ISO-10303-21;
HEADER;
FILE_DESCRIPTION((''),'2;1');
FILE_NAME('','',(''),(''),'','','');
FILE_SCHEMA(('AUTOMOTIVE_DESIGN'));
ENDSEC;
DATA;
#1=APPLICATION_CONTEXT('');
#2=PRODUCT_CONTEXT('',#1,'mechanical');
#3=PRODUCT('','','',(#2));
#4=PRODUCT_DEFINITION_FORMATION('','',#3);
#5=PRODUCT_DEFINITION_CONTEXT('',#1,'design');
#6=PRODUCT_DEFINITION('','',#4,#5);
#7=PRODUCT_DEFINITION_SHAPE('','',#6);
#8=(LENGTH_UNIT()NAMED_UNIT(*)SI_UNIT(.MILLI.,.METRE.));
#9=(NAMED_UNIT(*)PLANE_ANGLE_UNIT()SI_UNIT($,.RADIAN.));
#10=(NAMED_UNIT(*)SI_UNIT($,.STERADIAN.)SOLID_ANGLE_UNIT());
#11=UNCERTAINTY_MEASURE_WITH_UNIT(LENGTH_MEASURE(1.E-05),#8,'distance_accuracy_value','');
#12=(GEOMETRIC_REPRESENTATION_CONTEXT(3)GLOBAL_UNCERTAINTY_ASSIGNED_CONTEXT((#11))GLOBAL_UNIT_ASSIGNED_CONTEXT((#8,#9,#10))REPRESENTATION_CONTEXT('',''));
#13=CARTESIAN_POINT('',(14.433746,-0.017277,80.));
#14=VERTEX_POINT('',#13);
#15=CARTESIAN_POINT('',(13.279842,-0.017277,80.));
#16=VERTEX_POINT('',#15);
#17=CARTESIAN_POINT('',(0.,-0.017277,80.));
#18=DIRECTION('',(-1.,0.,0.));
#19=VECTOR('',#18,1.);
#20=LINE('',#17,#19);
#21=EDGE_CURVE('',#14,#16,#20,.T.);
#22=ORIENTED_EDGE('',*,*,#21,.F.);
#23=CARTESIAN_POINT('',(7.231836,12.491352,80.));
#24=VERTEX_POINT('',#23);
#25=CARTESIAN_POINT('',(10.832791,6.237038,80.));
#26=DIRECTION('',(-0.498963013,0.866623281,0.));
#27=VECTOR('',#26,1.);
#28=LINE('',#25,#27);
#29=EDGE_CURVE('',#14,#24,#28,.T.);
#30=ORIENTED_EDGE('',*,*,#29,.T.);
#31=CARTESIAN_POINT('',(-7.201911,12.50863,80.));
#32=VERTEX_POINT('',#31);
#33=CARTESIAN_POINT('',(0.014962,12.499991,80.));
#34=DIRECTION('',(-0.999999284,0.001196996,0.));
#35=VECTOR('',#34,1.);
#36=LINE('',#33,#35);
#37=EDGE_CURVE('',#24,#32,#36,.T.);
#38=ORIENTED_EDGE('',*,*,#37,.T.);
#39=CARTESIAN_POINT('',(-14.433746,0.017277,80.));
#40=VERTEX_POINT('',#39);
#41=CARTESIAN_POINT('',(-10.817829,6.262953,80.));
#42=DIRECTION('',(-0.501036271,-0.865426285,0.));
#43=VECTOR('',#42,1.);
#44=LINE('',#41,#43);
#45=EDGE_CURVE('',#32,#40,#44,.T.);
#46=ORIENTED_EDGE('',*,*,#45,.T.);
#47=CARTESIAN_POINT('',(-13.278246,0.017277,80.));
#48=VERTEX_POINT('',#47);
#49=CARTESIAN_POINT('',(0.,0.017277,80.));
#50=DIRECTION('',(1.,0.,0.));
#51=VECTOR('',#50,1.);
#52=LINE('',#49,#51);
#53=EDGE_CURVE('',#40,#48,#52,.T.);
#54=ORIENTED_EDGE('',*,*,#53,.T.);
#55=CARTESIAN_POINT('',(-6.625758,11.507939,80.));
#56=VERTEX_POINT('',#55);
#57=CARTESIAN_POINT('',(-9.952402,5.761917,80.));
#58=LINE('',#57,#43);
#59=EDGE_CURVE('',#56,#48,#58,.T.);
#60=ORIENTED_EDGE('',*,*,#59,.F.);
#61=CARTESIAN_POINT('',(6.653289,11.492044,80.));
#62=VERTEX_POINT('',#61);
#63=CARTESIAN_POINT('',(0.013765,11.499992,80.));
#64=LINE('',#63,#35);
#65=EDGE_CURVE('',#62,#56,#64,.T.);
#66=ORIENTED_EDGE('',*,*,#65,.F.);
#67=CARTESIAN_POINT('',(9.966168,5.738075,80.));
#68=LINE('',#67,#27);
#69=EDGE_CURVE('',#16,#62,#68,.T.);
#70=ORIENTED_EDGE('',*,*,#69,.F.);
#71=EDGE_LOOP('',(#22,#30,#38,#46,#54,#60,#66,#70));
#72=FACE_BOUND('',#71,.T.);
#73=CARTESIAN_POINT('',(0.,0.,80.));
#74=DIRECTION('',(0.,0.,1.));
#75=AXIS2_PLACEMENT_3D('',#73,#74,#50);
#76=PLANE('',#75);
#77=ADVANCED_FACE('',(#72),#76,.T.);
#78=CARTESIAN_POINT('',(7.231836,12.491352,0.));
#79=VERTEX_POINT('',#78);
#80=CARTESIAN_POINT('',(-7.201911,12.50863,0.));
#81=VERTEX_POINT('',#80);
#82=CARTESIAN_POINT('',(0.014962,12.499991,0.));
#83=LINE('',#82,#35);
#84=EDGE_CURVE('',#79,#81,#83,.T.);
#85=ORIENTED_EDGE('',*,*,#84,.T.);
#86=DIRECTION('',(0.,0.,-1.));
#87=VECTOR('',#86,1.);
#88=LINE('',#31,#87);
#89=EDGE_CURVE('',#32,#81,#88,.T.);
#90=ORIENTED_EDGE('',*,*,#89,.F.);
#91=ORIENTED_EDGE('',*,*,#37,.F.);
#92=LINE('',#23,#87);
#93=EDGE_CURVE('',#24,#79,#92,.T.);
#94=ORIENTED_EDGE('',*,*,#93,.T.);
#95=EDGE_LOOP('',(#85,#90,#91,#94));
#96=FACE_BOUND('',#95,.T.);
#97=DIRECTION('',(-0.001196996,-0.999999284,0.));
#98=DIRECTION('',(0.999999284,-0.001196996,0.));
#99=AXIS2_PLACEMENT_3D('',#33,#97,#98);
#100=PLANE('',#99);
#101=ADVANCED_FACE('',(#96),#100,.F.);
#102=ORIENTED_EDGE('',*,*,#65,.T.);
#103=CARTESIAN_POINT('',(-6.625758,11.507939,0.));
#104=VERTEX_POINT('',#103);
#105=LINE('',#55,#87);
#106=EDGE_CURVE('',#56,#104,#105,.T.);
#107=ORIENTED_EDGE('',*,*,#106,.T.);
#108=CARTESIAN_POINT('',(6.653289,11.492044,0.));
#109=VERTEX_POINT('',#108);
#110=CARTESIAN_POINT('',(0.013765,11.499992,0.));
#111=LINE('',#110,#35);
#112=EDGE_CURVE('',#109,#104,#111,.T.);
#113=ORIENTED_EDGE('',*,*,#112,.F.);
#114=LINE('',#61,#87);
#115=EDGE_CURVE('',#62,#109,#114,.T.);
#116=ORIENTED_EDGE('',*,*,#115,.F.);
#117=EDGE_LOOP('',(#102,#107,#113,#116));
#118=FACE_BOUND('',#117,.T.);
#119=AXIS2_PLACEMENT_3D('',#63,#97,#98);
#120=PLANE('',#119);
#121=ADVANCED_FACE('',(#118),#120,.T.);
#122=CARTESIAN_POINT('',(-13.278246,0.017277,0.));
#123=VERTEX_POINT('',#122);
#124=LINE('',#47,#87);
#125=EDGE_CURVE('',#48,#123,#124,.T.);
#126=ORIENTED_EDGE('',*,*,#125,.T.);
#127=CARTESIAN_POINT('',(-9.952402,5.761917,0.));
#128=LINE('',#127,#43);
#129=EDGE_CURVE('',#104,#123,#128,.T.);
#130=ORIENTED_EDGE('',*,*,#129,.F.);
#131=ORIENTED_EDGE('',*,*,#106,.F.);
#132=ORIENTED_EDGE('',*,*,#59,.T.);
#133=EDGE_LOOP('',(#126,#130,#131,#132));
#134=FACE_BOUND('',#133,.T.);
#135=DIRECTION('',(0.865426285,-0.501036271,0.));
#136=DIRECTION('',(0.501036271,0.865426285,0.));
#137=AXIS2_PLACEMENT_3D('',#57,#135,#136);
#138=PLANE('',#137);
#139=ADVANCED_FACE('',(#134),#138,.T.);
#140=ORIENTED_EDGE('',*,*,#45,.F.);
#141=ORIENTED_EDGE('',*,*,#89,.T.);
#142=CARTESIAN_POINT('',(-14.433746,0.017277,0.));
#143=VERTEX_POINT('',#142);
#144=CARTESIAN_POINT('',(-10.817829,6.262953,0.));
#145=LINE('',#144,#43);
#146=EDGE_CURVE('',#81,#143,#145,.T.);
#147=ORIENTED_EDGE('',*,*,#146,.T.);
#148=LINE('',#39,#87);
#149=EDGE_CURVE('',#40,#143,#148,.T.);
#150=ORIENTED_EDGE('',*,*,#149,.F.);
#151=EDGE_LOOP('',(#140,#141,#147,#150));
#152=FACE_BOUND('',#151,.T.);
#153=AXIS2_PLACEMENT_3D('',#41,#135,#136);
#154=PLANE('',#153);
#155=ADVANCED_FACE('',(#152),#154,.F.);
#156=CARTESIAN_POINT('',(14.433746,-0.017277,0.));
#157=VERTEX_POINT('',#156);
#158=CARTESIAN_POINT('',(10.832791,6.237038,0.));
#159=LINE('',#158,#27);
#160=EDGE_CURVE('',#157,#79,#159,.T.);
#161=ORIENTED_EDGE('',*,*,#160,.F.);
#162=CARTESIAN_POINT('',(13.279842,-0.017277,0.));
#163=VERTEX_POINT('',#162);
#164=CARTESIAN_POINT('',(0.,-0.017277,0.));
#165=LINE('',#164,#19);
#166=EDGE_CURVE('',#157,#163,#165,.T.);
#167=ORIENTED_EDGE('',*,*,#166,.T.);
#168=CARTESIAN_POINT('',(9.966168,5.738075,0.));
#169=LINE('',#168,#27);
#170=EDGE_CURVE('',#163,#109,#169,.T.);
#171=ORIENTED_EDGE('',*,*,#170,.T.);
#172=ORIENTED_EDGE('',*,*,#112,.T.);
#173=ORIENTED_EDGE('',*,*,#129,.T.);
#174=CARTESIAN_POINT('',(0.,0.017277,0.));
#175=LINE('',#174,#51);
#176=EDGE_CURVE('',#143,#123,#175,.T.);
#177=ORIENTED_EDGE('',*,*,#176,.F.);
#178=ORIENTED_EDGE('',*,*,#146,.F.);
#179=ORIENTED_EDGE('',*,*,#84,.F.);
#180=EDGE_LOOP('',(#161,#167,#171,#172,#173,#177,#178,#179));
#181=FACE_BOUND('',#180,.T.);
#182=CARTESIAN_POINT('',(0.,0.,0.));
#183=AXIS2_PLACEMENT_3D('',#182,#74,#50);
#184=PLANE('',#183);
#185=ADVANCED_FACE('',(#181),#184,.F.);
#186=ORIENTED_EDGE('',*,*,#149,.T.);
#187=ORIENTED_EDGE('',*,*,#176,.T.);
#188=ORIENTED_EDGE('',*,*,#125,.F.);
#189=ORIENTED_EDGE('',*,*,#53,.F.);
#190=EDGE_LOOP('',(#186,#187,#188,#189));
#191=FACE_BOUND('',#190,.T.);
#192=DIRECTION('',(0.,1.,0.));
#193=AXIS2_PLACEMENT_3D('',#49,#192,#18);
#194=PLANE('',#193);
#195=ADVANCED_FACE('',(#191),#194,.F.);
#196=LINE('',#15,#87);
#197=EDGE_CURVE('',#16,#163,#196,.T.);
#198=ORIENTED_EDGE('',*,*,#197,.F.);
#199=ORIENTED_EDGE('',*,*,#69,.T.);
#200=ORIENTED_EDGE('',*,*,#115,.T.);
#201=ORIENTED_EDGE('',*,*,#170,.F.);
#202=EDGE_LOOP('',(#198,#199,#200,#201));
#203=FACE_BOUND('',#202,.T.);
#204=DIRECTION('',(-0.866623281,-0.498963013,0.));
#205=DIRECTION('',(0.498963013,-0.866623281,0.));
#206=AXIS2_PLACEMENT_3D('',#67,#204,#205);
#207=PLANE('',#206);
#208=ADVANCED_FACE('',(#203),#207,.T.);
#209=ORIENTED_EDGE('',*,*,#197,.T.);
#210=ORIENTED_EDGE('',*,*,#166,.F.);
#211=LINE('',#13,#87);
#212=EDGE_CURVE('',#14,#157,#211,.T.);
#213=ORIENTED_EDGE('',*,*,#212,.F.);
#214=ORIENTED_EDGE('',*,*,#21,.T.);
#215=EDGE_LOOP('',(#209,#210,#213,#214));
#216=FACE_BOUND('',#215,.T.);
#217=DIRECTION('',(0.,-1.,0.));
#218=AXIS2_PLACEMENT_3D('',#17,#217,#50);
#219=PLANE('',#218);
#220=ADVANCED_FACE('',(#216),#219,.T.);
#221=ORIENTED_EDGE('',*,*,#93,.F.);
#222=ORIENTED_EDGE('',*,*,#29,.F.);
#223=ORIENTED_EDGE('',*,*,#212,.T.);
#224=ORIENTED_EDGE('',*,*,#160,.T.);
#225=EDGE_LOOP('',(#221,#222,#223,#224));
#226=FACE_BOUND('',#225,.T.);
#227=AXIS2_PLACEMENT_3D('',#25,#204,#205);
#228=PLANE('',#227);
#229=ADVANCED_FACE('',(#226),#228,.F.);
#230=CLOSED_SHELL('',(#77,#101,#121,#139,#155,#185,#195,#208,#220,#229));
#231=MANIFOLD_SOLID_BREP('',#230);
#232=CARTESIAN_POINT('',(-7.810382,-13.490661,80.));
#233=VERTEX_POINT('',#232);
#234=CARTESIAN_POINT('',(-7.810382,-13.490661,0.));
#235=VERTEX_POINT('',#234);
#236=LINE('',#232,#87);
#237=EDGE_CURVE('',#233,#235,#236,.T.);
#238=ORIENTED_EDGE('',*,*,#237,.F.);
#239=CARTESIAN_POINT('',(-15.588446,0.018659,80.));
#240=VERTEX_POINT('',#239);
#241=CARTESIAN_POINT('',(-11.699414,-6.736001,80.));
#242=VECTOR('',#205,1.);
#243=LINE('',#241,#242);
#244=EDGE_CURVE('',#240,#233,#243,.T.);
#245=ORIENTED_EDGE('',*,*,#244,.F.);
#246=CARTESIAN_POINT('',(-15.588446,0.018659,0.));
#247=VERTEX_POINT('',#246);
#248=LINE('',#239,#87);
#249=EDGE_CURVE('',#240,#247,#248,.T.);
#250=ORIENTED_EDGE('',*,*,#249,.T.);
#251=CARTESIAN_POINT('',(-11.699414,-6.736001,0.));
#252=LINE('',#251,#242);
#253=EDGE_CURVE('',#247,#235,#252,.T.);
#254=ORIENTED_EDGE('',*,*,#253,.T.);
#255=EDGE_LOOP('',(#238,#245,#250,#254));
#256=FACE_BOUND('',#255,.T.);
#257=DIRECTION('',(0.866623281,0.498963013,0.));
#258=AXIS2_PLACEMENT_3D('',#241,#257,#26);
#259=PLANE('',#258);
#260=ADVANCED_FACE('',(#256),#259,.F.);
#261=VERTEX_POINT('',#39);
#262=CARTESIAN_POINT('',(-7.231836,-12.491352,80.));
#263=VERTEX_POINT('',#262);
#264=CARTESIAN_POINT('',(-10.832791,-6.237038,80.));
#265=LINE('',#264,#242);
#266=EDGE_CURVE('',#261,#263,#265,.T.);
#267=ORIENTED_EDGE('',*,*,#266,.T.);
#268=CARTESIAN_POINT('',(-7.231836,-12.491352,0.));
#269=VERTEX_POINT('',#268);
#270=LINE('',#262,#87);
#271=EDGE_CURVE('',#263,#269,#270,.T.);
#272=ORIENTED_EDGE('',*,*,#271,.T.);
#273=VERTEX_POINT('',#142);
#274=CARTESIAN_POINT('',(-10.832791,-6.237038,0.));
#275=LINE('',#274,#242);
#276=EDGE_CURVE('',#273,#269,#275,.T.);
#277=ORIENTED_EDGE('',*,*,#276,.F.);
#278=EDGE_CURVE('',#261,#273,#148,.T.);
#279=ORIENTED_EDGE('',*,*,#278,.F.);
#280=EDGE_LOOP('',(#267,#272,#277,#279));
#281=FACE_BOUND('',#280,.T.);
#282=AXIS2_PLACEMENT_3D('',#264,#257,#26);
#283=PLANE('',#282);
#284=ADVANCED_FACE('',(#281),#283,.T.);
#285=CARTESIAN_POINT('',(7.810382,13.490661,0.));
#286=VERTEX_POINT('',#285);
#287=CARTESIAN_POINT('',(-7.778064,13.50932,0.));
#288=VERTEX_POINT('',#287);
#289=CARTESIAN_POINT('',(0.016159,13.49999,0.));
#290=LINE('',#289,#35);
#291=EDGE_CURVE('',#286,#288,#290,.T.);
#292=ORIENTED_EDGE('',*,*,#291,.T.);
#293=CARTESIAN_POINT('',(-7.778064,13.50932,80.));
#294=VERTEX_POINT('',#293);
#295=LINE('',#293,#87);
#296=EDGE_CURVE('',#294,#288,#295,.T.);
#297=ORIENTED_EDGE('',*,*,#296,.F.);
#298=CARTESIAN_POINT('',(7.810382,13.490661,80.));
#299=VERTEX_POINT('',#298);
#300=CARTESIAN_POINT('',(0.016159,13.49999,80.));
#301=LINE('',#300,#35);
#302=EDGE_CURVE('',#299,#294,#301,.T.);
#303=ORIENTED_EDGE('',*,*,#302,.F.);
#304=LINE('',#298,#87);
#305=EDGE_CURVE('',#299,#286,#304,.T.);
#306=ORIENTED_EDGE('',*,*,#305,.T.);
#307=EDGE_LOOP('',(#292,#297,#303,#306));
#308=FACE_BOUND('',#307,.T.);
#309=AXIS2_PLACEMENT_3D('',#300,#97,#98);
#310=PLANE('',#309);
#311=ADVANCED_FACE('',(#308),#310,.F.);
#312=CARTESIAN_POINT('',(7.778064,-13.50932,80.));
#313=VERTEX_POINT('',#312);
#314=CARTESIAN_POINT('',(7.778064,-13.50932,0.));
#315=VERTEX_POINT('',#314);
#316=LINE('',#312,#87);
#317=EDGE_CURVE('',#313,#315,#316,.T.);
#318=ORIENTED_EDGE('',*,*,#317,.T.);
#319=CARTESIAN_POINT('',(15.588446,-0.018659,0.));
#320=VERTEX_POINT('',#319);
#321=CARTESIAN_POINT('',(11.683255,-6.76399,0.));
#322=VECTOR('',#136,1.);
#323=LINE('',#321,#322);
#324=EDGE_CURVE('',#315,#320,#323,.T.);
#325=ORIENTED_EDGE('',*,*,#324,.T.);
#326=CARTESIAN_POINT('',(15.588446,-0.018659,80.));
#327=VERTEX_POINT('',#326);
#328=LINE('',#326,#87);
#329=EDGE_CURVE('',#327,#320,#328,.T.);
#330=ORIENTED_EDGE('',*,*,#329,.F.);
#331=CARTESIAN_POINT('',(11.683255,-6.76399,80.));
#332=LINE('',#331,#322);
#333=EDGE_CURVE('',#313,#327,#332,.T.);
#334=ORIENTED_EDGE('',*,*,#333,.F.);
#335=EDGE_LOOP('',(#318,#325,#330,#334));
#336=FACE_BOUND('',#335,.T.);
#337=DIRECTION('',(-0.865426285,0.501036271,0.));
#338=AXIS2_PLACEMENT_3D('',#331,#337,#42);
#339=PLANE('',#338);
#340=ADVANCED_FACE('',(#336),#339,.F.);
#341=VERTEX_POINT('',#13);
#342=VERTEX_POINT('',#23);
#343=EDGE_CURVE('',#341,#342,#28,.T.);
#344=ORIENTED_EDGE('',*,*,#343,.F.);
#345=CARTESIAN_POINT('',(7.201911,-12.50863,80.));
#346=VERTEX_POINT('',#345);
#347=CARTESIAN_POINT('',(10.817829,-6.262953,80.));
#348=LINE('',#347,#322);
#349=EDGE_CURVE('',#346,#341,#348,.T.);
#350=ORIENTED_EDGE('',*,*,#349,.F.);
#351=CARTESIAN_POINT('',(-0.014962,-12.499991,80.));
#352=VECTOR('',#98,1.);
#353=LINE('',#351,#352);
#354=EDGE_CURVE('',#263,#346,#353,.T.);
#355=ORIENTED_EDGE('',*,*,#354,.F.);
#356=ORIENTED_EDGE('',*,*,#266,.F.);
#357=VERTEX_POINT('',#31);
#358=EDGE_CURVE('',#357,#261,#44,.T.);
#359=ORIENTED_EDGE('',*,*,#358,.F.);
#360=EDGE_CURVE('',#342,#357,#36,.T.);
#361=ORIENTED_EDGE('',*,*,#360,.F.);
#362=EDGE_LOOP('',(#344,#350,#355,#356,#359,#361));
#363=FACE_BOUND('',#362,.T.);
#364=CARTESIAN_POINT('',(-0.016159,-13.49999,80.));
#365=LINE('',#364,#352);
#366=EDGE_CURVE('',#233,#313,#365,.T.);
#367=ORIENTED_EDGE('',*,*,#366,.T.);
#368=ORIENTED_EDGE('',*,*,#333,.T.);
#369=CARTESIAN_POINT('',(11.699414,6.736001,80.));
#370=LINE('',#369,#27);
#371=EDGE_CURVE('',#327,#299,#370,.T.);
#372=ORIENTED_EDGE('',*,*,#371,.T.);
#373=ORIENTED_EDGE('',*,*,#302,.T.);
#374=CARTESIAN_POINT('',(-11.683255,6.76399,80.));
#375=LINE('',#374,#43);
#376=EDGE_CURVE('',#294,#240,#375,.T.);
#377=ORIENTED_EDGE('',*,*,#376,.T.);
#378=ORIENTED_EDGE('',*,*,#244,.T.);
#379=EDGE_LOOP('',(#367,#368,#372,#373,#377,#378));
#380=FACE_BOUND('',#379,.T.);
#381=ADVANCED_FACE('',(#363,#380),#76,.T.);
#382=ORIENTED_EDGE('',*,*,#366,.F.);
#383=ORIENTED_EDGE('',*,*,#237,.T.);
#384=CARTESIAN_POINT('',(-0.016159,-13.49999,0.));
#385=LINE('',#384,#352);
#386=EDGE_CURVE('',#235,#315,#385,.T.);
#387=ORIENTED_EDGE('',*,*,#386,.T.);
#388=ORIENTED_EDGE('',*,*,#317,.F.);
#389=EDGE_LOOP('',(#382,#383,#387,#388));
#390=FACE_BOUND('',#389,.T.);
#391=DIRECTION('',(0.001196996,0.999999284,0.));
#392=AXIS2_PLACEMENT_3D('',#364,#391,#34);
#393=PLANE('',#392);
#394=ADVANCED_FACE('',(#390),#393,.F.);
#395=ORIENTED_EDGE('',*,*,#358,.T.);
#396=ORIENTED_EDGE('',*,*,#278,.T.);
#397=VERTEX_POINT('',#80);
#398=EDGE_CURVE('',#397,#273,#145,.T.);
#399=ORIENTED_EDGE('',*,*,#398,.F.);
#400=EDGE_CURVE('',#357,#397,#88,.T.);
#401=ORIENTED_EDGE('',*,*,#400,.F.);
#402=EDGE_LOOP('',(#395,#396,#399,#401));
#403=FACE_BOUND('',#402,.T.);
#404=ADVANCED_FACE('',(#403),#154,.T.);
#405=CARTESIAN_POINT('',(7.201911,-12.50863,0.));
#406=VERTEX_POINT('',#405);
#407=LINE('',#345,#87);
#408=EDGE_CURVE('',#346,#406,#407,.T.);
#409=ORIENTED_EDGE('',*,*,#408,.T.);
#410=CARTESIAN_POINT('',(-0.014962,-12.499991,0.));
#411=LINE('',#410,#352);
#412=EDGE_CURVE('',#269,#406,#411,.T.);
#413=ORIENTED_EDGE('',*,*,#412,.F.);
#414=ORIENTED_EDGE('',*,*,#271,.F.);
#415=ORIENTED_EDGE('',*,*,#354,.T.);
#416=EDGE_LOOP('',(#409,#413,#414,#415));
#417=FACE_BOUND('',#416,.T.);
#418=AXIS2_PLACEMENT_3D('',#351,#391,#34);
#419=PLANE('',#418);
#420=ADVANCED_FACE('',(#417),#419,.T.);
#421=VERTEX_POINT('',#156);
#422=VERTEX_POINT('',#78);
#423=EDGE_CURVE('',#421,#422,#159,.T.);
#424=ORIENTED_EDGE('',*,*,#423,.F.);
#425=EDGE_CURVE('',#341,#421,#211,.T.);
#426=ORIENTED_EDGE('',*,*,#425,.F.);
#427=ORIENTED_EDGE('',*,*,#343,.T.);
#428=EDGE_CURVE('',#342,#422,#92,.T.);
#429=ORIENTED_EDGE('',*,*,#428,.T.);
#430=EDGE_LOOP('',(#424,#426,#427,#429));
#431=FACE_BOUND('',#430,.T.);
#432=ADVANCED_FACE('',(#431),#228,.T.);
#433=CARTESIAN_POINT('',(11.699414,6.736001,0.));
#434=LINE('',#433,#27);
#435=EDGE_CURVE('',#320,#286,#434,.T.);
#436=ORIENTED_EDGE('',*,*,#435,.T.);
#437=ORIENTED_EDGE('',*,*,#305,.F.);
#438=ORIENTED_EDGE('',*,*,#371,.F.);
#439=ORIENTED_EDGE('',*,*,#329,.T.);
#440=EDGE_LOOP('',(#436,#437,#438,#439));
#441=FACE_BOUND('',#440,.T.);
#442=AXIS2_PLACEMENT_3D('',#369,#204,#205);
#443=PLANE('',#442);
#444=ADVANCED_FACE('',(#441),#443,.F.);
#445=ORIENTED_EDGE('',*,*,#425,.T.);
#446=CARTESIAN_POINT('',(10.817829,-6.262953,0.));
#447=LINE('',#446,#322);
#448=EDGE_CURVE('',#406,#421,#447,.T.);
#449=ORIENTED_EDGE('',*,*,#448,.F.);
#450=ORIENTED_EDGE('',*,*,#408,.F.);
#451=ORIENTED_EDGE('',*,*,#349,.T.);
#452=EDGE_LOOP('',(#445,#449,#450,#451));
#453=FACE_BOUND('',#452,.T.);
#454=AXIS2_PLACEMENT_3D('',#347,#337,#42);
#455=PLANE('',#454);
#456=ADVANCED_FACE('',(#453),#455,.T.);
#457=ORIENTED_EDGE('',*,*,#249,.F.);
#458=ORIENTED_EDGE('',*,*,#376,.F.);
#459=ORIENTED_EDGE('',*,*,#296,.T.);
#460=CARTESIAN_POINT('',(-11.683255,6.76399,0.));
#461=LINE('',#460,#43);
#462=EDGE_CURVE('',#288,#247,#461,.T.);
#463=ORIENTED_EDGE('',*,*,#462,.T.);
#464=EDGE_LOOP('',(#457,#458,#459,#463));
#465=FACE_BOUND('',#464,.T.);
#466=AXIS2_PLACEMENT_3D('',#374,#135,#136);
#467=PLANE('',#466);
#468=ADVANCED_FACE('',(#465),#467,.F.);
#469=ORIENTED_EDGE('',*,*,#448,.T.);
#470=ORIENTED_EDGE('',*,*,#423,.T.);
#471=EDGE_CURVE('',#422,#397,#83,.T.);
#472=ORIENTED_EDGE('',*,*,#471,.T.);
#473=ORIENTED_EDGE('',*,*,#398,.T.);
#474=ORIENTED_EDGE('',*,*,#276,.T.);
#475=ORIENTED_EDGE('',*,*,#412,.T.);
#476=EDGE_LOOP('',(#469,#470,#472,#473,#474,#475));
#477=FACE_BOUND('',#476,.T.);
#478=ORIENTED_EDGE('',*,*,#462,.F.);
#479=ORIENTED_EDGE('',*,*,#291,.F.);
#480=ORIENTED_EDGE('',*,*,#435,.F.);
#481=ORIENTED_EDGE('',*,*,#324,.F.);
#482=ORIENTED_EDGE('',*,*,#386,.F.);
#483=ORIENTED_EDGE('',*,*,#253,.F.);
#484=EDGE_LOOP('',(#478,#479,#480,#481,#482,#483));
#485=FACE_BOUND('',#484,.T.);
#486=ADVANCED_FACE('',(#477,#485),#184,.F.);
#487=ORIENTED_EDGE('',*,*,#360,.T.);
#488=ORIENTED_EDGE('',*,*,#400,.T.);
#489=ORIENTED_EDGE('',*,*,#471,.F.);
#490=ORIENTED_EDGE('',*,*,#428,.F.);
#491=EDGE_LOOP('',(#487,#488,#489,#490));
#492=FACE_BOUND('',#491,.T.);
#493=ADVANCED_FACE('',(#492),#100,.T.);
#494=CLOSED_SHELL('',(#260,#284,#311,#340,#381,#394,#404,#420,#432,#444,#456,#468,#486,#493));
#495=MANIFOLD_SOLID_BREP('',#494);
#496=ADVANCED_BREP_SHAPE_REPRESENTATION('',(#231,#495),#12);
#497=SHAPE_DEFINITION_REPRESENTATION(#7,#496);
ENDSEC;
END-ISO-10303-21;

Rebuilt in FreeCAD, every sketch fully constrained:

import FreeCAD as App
import Part
import Sketcher
from FreeCAD import Vector


def add_polygon(sketch, points):
    """Adds a closed chain of lines whose ends are joined by coincident constraints."""
    first, n = sketch.GeometryCount, len(points)
    for a, b in zip(points, points[1:] + points[:1]):
        sketch.addGeometry(Part.LineSegment(App.Vector(*a, 0), App.Vector(*b, 0)), False)
    for i in range(n):
        sketch.addConstraint(Sketcher.Constraint("Coincident", first + i, 2, first + (i + 1) % n, 1))

doc = App.newDocument("Part")
body = doc.addObject("PartDesign::Body", "Body")

sketch1 = body.newObject("Sketcher::SketchObject", "Sketch")
sketch1.AttachmentSupport = (doc.getObject("XY_Plane"), [""])
sketch1.MapMode = "FlatFace"
add_polygon(sketch1, [(8, -14), (16, 0), (8, 13), (-8, 14), (-16, 0), (-8, -13)])
add_polygon(sketch1, [(7, 12), (14, 0), (7, -13), (-7, -12), (-14, 0), (-7, 13)])
sketch1.addConstraint([
    Sketcher.Constraint("Symmetric", 0, 2, 3, 2, -1, 1),
    Sketcher.Constraint("Symmetric", 1, 2, 4, 2, -1, 1),
    Sketcher.Constraint("Symmetric", 2, 2, 5, 2, -1, 1),
    Sketcher.Constraint("Symmetric", 6, 2, 9, 2, -1, 1),
    Sketcher.Constraint("Symmetric", 7, 2, 10, 2, -1, 1),
    Sketcher.Constraint("Symmetric", 8, 2, 11, 2, -1, 1),
    Sketcher.Constraint("Parallel", 4, 6),
    Sketcher.Constraint("Parallel", 3, 7),
    Sketcher.Constraint("Parallel", 5, 8),
    Sketcher.Constraint("Equal", 0, 1),
    Sketcher.Constraint("Equal", 1, 2),
    Sketcher.Constraint("Equal", 6, 7),
    Sketcher.Constraint("Equal", 7, 8),
    Sketcher.Constraint("DistanceY", 3, 2, 1, 2, 13.472001),
    Sketcher.Constraint("DistanceX", 6, 2, 0, 2, 1.1547),
    Sketcher.Constraint("DistanceX", 8, 2, 5, 2, 15.009899),
    Sketcher.Constraint("DistanceY", 0, 2, -1, 1, 0.018659),
    Sketcher.Constraint("DistanceY", -1, 1, 2, 2, 13.50932),
])
pad1 = body.newObject("PartDesign::Pad", "Pad")
pad1.Profile = sketch1
pad1.Length = 80
body2 = doc.addObject("PartDesign::Body", "Body001")

sketch2 = body2.newObject("Sketcher::SketchObject", "Sketch001")
sketch2.AttachmentSupport = (doc.getObject("XY_Plane001"), [""])
sketch2.MapMode = "FlatFace"
add_polygon(sketch2, [(14.4, 0), (7.2, 12.5), (-7.2, 12.5), (-14.4, 0), (-13.3, 0), (-6.6, 11.5), (6.7, 11.5), (13.3, 0)])
sketch2.addConstraint([
    Sketcher.Constraint("Horizontal", 3),
    Sketcher.Constraint("Horizontal", 7),
    Sketcher.Constraint("Symmetric", 2, 2, 7, 2, -1, 1),
    Sketcher.Constraint("Parallel", 2, 4),
    Sketcher.Constraint("Parallel", 1, 5),
    Sketcher.Constraint("Parallel", 0, 6),
    Sketcher.Constraint("Equal", 0, 1),
    Sketcher.Constraint("Equal", 1, 2),
    Sketcher.Constraint("DistanceX", 3, 1, 3, 2, 1.1555),
    Sketcher.Constraint("DistanceX", 1, 2, 5, 2, 13.8552),
    Sketcher.Constraint("DistanceX", 4, 2, 6, 2, 19.9056),
    Sketcher.Constraint("Distance", 4, 13.277459),
    Sketcher.Constraint("Distance", 6, 13.280651),
    Sketcher.Constraint("DistanceX", 7, 1, 7, 2, 1.153904),
    Sketcher.Constraint("DistanceX", 1, 2, -1, 1, 7.201911),
])
pad2 = body2.newObject("PartDesign::Pad", "Pad001")
pad2.Profile = sketch2
pad2.Length = 80

doc.recompute()
